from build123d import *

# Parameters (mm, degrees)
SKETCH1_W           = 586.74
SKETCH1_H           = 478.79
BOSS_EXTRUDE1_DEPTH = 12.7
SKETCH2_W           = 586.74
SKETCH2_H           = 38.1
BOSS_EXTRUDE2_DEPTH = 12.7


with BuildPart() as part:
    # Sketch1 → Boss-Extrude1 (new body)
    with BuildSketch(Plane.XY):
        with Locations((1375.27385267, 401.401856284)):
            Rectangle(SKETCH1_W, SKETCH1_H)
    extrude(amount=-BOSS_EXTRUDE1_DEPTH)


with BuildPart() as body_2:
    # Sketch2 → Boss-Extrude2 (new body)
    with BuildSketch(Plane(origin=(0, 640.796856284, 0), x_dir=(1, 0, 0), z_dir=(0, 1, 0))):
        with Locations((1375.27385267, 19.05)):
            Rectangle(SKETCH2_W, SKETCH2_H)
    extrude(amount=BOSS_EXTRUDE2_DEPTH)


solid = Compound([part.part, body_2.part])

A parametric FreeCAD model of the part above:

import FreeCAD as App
import Part
import Sketcher

V = App.Vector
Q = App.Units.Quantity


def add_polygon(sketch, points):
    """Adds a closed chain of lines whose ends are joined by coincident constraints."""
    first, n = sketch.GeometryCount, len(points)
    for a, b in zip(points, points[1:] + points[:1]):
        sketch.addGeometry(Part.LineSegment(App.Vector(*a, 0), App.Vector(*b, 0)), False)
    for i in range(n):
        sketch.addConstraint(Sketcher.Constraint("Coincident", first + i, 2, first + (i + 1) % n, 1))

doc = App.newDocument("Part")
body = doc.addObject("PartDesign::Body", "Body")

# Sketch on XY plane
sketch1 = body.newObject("Sketcher::SketchObject", "Sketch")
sketch1.AttachmentSupport = (doc.getObject("XY_Plane"), [""])
sketch1.MapMode = "FlatFace"
add_polygon(sketch1, [(1081.903853, 640.796856), (1081.903853, 162.006856), (1668.643853, 162.006856), (1668.643853, 640.796856)])  # lines 0-3
sketch1.addConstraint(Sketcher.Constraint("Vertical", 0))
sketch1.addConstraint(Sketcher.Constraint("Horizontal", 1))
sketch1.addConstraint(Sketcher.Constraint("Vertical", 2))
sketch1.addConstraint(Sketcher.Constraint("Horizontal", 3))
sketch1.addConstraint(Sketcher.Constraint("DistanceX", 1, 1, 1, 2, Q("23.1 in")))
sketch1.addConstraint(Sketcher.Constraint("DistanceY", 0, 2, 0, 1, Q("18.85 in")))
sketch1.addConstraint(Sketcher.Constraint("DistanceX", -1, 1, 0, 2, 1081.903853))
sketch1.addConstraint(Sketcher.Constraint("DistanceY", -1, 1, 0, 2, 162.006856))
pad1 = body.newObject("PartDesign::Pad", "Pad")
pad1.Profile = sketch1
pad1.Length = Q("0.5 in")
pad1.Reversed = True
body2 = doc.addObject("PartDesign::Body", "Body001")

# Sketch on XZ plane
sketch2 = body2.newObject("Sketcher::SketchObject", "Sketch001")
sketch2.AttachmentSupport = (doc.getObject("XZ_Plane001"), [""])
sketch2.MapMode = "FlatFace"
sketch2.AttachmentOffset = App.Placement(V(0, 0, -640.796856), App.Rotation())
add_polygon(sketch2, [(1081.903853, -38.1), (1081.903853, 0), (1668.643853, 0), (1668.643853, -38.1)])  # lines 0-3
sketch2.addConstraint(Sketcher.Constraint("Vertical", 0))
sketch2.addConstraint(Sketcher.Constraint("Horizontal", 1))
sketch2.addConstraint(Sketcher.Constraint("Vertical", 2))
sketch2.addConstraint(Sketcher.Constraint("Horizontal", 3))
sketch2.addConstraint(Sketcher.Constraint("PointOnObject", 0, 2, -1))
sketch2.addConstraint(Sketcher.Constraint("DistanceX", 1, 1, 1, 2, Q("23.1 in")))
sketch2.addConstraint(Sketcher.Constraint("DistanceY", 0, 1, 0, 2, Q("1.5 in")))
sketch2.addConstraint(Sketcher.Constraint("DistanceX", -1, 1, 0, 2, 1081.903853))
pad2 = body2.newObject("PartDesign::Pad", "Pad001")
pad2.Profile = sketch2
pad2.Length = Q("0.5 in")
pad2.Reversed = True

doc.recompute()
